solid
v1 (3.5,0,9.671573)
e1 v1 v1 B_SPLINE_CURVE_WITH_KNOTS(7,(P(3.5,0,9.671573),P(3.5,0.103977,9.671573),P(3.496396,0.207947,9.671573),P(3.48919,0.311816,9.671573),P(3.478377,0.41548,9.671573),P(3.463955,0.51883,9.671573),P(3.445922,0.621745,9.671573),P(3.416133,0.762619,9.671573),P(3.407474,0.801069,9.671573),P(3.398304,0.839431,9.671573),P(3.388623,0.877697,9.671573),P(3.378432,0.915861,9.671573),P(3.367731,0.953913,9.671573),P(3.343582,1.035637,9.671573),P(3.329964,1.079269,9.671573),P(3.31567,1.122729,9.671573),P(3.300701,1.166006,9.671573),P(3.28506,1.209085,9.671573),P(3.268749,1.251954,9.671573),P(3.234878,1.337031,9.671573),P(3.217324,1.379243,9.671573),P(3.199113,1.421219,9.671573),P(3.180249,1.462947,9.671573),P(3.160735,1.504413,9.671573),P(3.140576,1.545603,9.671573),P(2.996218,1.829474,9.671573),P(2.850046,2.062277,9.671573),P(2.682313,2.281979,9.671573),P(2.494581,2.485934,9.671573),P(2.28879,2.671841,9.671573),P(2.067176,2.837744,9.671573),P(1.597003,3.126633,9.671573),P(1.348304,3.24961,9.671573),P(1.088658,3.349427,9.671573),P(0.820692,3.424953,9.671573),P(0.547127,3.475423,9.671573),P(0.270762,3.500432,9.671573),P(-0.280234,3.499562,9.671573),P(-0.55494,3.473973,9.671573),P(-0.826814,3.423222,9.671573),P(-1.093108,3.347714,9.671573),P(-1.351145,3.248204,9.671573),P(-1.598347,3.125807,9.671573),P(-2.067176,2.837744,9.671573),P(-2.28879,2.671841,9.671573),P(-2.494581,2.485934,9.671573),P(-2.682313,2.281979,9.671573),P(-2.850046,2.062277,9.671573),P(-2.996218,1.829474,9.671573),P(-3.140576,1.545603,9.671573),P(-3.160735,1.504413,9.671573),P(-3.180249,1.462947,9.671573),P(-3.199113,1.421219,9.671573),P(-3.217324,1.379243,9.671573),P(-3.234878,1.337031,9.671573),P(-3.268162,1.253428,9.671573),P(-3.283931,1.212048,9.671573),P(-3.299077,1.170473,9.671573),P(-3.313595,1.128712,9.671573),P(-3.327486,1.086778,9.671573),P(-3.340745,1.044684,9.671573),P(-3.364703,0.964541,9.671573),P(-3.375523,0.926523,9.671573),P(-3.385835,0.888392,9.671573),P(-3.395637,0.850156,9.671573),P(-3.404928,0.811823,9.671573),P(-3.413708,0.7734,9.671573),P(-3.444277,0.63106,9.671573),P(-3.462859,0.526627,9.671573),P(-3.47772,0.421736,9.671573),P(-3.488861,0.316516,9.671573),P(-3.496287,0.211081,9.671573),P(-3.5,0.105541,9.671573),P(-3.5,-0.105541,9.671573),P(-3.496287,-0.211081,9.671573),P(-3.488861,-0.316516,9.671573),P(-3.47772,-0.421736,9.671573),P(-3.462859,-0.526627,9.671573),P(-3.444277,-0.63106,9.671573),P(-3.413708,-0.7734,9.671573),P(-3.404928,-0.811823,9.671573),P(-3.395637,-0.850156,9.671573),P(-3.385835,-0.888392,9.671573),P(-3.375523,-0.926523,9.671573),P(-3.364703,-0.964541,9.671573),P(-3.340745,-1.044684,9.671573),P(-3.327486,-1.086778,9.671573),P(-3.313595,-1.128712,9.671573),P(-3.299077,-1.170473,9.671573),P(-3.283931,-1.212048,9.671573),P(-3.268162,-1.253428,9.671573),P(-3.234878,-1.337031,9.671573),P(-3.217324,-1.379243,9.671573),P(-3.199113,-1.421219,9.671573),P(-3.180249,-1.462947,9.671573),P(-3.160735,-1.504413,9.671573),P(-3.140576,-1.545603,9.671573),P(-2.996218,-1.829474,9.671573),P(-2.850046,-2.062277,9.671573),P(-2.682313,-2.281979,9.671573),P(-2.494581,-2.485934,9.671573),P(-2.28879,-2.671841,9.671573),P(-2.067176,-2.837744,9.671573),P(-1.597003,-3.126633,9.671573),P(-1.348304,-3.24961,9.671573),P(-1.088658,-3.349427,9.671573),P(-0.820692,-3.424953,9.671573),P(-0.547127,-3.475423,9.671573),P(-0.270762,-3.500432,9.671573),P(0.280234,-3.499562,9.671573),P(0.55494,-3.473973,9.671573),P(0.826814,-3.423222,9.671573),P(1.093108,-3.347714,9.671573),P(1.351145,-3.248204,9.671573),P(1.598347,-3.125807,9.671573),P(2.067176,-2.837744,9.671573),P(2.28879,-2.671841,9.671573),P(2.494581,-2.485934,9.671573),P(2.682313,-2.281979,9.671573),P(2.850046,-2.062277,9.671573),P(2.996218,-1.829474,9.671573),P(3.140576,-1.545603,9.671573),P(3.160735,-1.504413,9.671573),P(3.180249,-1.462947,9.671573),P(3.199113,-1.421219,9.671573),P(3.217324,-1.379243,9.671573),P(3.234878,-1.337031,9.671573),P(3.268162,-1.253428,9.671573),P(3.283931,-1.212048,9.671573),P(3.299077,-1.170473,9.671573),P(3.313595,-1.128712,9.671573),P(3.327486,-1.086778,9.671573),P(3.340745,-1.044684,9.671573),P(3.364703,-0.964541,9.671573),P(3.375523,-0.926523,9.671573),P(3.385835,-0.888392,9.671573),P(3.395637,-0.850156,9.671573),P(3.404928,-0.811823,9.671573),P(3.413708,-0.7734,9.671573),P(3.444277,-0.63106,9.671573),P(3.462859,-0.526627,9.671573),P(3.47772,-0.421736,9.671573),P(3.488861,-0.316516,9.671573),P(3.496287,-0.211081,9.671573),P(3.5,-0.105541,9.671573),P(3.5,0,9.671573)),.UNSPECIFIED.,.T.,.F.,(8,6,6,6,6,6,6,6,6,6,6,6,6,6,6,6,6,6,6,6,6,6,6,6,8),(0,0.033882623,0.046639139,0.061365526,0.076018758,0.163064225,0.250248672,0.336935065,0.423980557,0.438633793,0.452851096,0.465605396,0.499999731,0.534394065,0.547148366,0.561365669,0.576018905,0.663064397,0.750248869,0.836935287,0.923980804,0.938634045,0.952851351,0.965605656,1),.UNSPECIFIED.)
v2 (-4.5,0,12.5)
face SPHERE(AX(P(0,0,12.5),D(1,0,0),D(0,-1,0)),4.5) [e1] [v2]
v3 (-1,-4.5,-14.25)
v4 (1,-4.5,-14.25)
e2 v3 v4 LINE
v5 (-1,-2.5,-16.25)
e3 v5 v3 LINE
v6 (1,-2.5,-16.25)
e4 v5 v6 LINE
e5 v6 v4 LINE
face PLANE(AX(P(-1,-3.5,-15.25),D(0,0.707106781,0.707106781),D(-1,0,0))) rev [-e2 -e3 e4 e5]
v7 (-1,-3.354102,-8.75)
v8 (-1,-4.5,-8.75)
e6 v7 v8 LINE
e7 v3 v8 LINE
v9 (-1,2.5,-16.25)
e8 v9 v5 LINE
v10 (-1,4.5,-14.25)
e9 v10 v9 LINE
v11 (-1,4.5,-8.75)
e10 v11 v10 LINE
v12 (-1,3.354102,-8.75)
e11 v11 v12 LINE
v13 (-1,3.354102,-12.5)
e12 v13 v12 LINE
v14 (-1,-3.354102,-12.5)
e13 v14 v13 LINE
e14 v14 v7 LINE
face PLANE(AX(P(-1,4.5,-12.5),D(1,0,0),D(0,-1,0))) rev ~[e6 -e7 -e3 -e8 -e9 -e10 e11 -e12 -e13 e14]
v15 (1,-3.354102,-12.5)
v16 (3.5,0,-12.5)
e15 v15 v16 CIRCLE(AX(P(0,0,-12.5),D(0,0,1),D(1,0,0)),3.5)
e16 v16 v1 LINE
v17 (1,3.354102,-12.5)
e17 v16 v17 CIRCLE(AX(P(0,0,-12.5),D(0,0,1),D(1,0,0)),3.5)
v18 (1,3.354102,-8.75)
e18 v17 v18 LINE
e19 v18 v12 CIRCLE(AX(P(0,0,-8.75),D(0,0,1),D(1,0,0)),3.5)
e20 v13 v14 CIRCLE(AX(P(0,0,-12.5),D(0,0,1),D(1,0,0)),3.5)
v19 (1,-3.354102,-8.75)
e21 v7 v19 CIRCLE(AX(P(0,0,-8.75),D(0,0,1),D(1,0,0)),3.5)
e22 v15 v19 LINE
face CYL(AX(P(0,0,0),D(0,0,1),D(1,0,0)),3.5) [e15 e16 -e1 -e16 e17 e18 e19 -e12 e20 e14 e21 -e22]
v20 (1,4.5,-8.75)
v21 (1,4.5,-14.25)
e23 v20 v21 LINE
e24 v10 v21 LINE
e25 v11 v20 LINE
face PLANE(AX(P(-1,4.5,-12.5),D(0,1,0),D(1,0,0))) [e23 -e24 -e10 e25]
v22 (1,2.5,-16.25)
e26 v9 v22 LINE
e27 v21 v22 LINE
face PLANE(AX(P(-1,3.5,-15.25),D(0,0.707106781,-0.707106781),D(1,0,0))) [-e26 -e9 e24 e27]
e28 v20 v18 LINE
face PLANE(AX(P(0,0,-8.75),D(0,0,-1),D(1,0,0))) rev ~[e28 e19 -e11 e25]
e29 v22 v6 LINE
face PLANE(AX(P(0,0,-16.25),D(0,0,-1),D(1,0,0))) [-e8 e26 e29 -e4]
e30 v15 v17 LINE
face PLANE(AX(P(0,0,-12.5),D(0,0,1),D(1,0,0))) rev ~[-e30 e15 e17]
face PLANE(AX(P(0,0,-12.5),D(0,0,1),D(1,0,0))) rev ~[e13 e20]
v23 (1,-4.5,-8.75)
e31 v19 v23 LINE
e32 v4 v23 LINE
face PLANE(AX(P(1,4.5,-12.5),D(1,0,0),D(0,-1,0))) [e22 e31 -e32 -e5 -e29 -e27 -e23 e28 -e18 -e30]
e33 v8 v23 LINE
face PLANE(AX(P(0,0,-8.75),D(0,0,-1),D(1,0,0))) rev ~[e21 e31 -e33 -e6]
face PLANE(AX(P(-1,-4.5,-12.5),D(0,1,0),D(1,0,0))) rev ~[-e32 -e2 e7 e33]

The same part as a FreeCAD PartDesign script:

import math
import FreeCAD as App
import Part
import Sketcher
Q = App.Units.Quantity


def edges_at(feature, points):
    """Names of the edges that pass closest to the given points."""
    edges = feature.Shape.Edges
    near = lambda p: min(range(len(edges)), key=lambda i: edges[i].distToShape(Part.Vertex(*p))[0])
    return sorted({f"Edge{near(p) + 1}" for p in points})

doc = App.newDocument("Part")
body = doc.addObject("PartDesign::Body", "Body")

# Sketch on XY plane
sketch1 = body.newObject("Sketcher::SketchObject", "Sketch")
sketch1.AttachmentSupport = (doc.getObject("XY_Plane"), [""])
sketch1.MapMode = "FlatFace"
sketch1.addGeometry(Part.Circle(App.Vector(0, 0, 0), App.Vector(0, 0, 1), 3.5), False)
sketch1.addConstraint(Sketcher.Constraint("Coincident", 0, 3, -1, 1))
sketch1.addConstraint(Sketcher.Constraint("Diameter", 0, Q("7 mm")))
pad1 = body.newObject("PartDesign::Pad", "Pad")
pad1.Profile = sketch1
pad1.Length = 25
pad1.Midplane = True

# Sketch on XY plane
sketch2 = body.newObject("Sketcher::SketchObject", "Sketch001")
sketch2.AttachmentSupport = (doc.getObject("XY_Plane"), [""])
sketch2.MapMode = "FlatFace"
sketch2.AttachmentOffset = App.Placement(App.Vector(0, 0, -12.5), App.Rotation())
sketch2.addGeometry(Part.LineSegment(App.Vector(-1, -4.5, 0), App.Vector(-1, 4.5, 0)), False)
sketch2.addGeometry(Part.LineSegment(App.Vector(-1, 4.5, 0), App.Vector(1, 4.5, 0)), False)
sketch2.addGeometry(Part.LineSegment(App.Vector(1, 4.5, 0), App.Vector(1, -4.5, 0)), False)
sketch2.addGeometry(Part.LineSegment(App.Vector(1, -4.5, 0), App.Vector(-1, -4.5, 0)), False)
sketch2.addConstraint(Sketcher.Constraint("Coincident", 0, 2, 1, 1))
sketch2.addConstraint(Sketcher.Constraint("Coincident", 1, 2, 2, 1))
sketch2.addConstraint(Sketcher.Constraint("Coincident", 2, 2, 3, 1))
sketch2.addConstraint(Sketcher.Constraint("Coincident", 3, 2, 0, 1))
sketch2.addConstraint(Sketcher.Constraint("Vertical", 0))
sketch2.addConstraint(Sketcher.Constraint("Horizontal", 1))
sketch2.addConstraint(Sketcher.Constraint("Vertical", 2))
sketch2.addConstraint(Sketcher.Constraint("Horizontal", 3))
sketch2.addConstraint(Sketcher.Constraint("Symmetric", 0, 2, 2, 2, -1, 1))
sketch2.addConstraint(Sketcher.Constraint("DistanceX", 1, 1, 1, 2, Q("2 mm")))
sketch2.addConstraint(Sketcher.Constraint("DistanceY", 0, 1, 0, 2, Q("9 mm")))
pad2 = body.newObject("PartDesign::Pad", "Pad001")
pad2.Profile = sketch2
pad2.Length = 7.5
pad2.Midplane = True

# Sketch on XY plane
sketch3 = body.newObject("Sketcher::SketchObject", "Sketch002")
sketch3.AttachmentSupport = (doc.getObject("XY_Plane"), [""])
sketch3.MapMode = "FlatFace"
sketch3.AttachmentOffset = App.Placement(App.Vector(0, 0, 12.5), App.Rotation())
sketch3.addGeometry(Part.LineSegment(App.Vector(4.5, 0, 0), App.Vector(-4.5, 0, 0)), False)
sketch3.addGeometry(Part.ArcOfCircle(Part.Circle(App.Vector(0, 0, 0), App.Vector(0, 0, 1), 4.5), math.radians(180), math.radians(360)), False)
sketch3.addConstraint(Sketcher.Constraint("Coincident", 0, 1, 1, 2))
sketch3.addConstraint(Sketcher.Constraint("Coincident", 1, 1, 0, 2))
sketch3.addConstraint(Sketcher.Constraint("Horizontal", 0))
sketch3.addConstraint(Sketcher.Constraint("Coincident", 1, 3, -1, 1))
sketch3.addConstraint(Sketcher.Constraint("PointOnObject", 0, 1, -1))
sketch3.addConstraint(Sketcher.Constraint("Radius", 1, Q("4.5 mm")))
revolution = body.newObject("PartDesign::Revolution", "Revolution")
revolution.Profile = sketch3
revolution.ReferenceAxis = (sketch3, ["H_Axis"])
revolution.Angle = 360
doc.recompute()

chamfer = body.newObject("PartDesign::Chamfer", "Chamfer")
chamfer.Base = (revolution, edges_at(revolution, [(0, -4.5, -16.25), (0, 4.5, -16.25)]))
chamfer.Size = 2

doc.recompute()
